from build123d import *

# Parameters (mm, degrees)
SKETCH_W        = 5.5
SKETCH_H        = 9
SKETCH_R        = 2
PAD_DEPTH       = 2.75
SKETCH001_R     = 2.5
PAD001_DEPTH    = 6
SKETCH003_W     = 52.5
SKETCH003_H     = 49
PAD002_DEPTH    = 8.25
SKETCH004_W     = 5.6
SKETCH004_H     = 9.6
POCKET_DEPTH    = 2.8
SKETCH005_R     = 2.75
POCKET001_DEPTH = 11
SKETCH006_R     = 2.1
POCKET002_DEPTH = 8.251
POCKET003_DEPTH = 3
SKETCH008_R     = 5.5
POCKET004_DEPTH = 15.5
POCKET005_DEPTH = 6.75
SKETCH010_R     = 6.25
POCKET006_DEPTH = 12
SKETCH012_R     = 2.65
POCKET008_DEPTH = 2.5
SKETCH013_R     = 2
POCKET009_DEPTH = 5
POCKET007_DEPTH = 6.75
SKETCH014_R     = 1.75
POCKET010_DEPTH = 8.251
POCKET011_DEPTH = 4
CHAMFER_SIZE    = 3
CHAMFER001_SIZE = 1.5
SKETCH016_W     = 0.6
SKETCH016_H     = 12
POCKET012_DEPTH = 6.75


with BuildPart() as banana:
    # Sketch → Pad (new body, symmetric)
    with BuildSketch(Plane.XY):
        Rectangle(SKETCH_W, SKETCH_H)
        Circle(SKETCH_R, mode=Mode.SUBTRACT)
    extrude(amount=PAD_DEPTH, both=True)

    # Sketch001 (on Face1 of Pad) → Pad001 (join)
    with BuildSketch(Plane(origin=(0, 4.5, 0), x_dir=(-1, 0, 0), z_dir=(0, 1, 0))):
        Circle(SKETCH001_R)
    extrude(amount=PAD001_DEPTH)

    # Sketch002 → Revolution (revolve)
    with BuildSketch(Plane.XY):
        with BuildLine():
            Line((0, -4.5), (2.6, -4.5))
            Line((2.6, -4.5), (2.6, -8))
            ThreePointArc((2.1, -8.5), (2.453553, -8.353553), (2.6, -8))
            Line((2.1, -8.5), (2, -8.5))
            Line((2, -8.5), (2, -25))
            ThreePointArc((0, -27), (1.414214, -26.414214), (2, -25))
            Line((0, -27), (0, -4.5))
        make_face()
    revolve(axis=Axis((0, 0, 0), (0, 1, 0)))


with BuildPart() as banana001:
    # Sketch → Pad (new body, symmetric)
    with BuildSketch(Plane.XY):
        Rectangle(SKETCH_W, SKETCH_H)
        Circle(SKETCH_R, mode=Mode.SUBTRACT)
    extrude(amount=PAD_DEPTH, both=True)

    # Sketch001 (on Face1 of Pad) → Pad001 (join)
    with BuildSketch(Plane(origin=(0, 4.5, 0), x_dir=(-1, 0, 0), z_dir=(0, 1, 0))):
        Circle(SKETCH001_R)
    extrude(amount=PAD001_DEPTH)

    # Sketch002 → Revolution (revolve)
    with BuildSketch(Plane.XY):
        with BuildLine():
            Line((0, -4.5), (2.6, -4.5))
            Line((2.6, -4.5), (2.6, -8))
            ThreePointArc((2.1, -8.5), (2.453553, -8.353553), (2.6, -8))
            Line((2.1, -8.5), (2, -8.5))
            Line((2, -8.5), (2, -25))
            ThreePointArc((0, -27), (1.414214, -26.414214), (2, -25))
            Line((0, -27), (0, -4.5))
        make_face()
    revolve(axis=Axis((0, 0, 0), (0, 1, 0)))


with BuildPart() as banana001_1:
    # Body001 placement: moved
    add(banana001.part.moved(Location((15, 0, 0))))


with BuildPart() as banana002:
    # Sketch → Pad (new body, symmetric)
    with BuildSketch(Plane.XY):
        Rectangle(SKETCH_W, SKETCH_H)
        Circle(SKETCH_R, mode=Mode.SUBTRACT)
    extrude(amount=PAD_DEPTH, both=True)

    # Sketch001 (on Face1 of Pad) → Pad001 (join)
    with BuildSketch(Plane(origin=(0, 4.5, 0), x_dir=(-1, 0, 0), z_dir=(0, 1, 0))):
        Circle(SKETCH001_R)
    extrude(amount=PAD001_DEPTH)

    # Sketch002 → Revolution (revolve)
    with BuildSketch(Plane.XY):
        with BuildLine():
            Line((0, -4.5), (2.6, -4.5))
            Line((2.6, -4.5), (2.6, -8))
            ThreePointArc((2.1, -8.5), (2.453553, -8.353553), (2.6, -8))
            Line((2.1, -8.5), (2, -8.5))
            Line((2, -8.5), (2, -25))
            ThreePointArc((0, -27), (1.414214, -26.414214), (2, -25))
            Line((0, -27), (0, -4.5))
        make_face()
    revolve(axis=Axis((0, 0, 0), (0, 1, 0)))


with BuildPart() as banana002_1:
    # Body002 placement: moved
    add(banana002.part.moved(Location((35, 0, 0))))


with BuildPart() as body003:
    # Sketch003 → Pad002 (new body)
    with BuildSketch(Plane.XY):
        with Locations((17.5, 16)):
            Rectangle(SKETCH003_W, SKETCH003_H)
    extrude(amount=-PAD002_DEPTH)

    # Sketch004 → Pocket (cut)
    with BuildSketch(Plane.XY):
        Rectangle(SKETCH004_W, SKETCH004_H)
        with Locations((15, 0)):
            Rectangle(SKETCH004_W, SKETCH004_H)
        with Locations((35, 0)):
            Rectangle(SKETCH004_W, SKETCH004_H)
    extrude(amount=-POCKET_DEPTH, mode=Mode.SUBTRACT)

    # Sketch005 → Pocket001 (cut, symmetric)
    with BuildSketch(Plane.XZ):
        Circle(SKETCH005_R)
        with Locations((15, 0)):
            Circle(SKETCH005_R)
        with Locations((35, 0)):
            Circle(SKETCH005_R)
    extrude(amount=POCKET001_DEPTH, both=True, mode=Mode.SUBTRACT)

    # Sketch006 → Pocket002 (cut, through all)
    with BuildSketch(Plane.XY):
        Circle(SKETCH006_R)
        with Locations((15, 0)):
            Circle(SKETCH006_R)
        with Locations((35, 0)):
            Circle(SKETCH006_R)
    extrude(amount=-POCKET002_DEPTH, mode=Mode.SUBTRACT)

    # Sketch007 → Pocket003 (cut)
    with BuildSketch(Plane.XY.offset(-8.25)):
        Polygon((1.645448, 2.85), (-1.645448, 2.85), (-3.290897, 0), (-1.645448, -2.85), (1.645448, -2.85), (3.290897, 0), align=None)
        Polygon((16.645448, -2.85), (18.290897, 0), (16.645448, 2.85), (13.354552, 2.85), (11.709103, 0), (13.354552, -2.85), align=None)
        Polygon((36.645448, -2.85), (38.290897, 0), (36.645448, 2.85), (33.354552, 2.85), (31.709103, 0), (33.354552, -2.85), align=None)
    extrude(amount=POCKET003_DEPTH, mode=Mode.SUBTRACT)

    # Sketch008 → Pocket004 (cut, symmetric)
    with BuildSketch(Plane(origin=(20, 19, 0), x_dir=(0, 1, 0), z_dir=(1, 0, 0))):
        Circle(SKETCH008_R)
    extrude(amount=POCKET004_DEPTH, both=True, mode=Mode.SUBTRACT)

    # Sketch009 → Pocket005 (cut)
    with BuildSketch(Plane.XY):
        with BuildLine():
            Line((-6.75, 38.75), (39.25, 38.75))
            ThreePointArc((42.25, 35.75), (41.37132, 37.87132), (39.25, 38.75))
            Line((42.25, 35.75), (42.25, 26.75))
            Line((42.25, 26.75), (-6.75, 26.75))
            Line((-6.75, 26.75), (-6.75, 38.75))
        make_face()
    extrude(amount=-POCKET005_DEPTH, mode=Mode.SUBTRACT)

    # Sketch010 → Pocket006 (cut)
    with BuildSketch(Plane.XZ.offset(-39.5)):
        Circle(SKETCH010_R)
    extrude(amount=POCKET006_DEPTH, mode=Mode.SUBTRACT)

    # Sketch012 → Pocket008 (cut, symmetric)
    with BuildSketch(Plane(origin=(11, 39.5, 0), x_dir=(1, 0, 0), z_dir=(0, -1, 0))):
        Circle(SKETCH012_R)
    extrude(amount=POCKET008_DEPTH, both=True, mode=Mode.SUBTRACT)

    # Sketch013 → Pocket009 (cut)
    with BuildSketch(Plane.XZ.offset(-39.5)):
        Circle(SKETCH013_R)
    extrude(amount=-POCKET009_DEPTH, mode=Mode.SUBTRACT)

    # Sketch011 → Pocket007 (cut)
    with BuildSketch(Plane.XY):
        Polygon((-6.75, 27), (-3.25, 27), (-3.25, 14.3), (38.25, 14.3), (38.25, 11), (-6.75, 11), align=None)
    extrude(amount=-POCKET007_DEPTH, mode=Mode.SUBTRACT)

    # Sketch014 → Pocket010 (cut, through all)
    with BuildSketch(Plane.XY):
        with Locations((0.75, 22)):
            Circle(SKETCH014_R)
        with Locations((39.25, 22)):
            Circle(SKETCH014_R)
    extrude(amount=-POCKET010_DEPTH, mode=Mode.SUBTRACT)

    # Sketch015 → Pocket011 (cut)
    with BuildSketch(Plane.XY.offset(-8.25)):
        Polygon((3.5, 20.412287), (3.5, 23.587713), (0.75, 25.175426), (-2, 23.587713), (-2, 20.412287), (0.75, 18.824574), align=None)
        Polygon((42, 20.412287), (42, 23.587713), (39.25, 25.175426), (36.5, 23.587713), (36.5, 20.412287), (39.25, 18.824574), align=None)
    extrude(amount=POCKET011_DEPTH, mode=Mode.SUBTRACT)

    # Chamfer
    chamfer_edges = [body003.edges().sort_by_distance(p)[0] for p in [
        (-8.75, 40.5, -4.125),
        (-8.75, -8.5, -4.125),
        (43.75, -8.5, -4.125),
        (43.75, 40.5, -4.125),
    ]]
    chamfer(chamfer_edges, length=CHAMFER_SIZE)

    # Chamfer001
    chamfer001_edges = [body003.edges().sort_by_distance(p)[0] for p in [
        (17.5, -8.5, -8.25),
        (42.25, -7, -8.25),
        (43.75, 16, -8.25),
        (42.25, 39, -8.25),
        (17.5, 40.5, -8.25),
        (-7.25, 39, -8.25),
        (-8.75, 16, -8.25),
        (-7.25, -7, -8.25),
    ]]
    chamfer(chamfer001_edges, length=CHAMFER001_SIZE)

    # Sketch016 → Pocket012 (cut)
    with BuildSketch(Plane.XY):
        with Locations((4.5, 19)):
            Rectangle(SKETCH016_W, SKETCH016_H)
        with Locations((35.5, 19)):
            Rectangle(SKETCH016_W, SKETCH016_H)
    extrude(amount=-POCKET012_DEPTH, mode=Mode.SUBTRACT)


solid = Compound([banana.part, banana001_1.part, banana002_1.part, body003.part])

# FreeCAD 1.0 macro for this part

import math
import FreeCAD as App
import Part
import Sketcher
Q = App.Units.Quantity


def edges_at(feature, points):
    """Names of the edges that pass closest to the given points."""
    edges = feature.Shape.Edges
    near = lambda p: min(range(len(edges)), key=lambda i: edges[i].distToShape(Part.Vertex(*p))[0])
    return sorted({f"Edge{near(p) + 1}" for p in points})

doc = App.newDocument("Part")
body = doc.addObject("PartDesign::Body", "Body")

# Sketch on XY plane
sketch1 = doc.addObject("Sketcher::SketchObject", "Sketch")
body.addObject(sketch1)
sketch1.AttachmentSupport = (doc.XY_Plane, [""])
sketch1.MapMode = "FlatFace"
sketch1.addGeometry(Part.LineSegment(App.Vector(-2.75, 4.5, 0), App.Vector(-2.75, -4.5, 0)), False)
sketch1.addGeometry(Part.LineSegment(App.Vector(-2.75, -4.5, 0), App.Vector(2.75, -4.5, 0)), False)
sketch1.addGeometry(Part.LineSegment(App.Vector(2.75, -4.5, 0), App.Vector(2.75, 4.5, 0)), False)
sketch1.addGeometry(Part.LineSegment(App.Vector(2.75, 4.5, 0), App.Vector(-2.75, 4.5, 0)), False)
sketch1.addGeometry(Part.Circle(App.Vector(0, 0, 0), App.Vector(0, 0, 1), 2), False)
sketch1.addConstraint(Sketcher.Constraint("Coincident", 0, 2, 1, 1))
sketch1.addConstraint(Sketcher.Constraint("Coincident", 1, 2, 2, 1))
sketch1.addConstraint(Sketcher.Constraint("Coincident", 2, 2, 3, 1))
sketch1.addConstraint(Sketcher.Constraint("Coincident", 3, 2, 0, 1))
sketch1.addConstraint(Sketcher.Constraint("Vertical", 0))
sketch1.addConstraint(Sketcher.Constraint("Horizontal", 1))
sketch1.addConstraint(Sketcher.Constraint("Vertical", 2))
sketch1.addConstraint(Sketcher.Constraint("Horizontal", 3))
sketch1.addConstraint(Sketcher.Constraint("Coincident", 4, 3, -1, 1))
sketch1.addConstraint(Sketcher.Constraint("Symmetric", 0, 2, 2, 2, -1, 1))
sketch1.addConstraint(Sketcher.Constraint("Diameter", 4, 4.0))
sketch1.addConstraint(Sketcher.Constraint("DistanceY", 0, 2, 0, 1, 9.0))
sketch1.addConstraint(Sketcher.Constraint("DistanceX", 1, 1, 1, 2, 5.5))
pad1 = doc.addObject("PartDesign::Pad", "Pad")
body.addObject(pad1)
pad1.Profile = sketch1
pad1.Length = 5.5
pad1.Midplane = True

# Sketch on XZ plane
sketch2 = doc.addObject("Sketcher::SketchObject", "Sketch001")
body.addObject(sketch2)
sketch2.AttachmentSupport = (doc.XZ_Plane, [""])
sketch2.MapMode = "FlatFace"
sketch2.AttachmentOffset = App.Placement(App.Vector(0, 0, -4.5), App.Rotation())
sketch2.addGeometry(Part.Circle(App.Vector(0, 0, 0), App.Vector(0, 0, 1), 2.5), False)
sketch2.addConstraint(Sketcher.Constraint("Coincident", 0, 3, -1, 1))
sketch2.addConstraint(Sketcher.Constraint("Diameter", 0, 5.0))
pad2 = doc.addObject("PartDesign::Pad", "Pad001")
body.addObject(pad2)
pad2.Profile = sketch2
pad2.Length = 6
pad2.Reversed = True

# Sketch on XY plane
sketch3 = doc.addObject("Sketcher::SketchObject", "Sketch002")
body.addObject(sketch3)
sketch3.AttachmentSupport = (doc.XY_Plane, [""])
sketch3.MapMode = "FlatFace"
sketch3.addGeometry(Part.LineSegment(App.Vector(2.6, -4.5, 0), App.Vector(0, -4.5, 0)), False)
sketch3.addGeometry(Part.LineSegment(App.Vector(0, -4.5, 0), App.Vector(0, -27, 0)), False)
sketch3.addGeometry(Part.ArcOfCircle(Part.Circle(App.Vector(0.000001, -25.000001, 0), App.Vector(0, 0, 1), 1.999999), math.radians(-90.000043), math.radians(0.000043)), False)
sketch3.addGeometry(Part.LineSegment(App.Vector(2, -25, 0), App.Vector(2, -8.5, 0)), False)
sketch3.addGeometry(Part.LineSegment(App.Vector(2, -8.5, 0), App.Vector(2.1, -8.5, 0)), False)
sketch3.addGeometry(Part.ArcOfCircle(Part.Circle(App.Vector(2.099999, -7.999999, 0), App.Vector(0, 0, 1), 0.500001), math.radians(-89.999847), math.radians(-0.000153)), False)
sketch3.addGeometry(Part.LineSegment(App.Vector(2.6, -8, 0), App.Vector(2.6, -4.5, 0)), False)
sketch3.addConstraint(Sketcher.Constraint("Coincident", 0, 2, 1, 1))
sketch3.addConstraint(Sketcher.Constraint("Coincident", 1, 2, 2, 1))
sketch3.addConstraint(Sketcher.Constraint("Tangent", 2, 2, 3, 1))
sketch3.addConstraint(Sketcher.Constraint("Coincident", 3, 2, 4, 1))
sketch3.addConstraint(Sketcher.Constraint("Coincident", 4, 2, 5, 1))
sketch3.addConstraint(Sketcher.Constraint("Coincident", 5, 2, 6, 1))
sketch3.addConstraint(Sketcher.Constraint("Coincident", 6, 2, 0, 1))
sketch3.addConstraint(Sketcher.Constraint("Horizontal", 0))
sketch3.addConstraint(Sketcher.Constraint("Vertical", 1))
sketch3.addConstraint(Sketcher.Constraint("Vertical", 3))
sketch3.addConstraint(Sketcher.Constraint("Horizontal", 4))
sketch3.addConstraint(Sketcher.Constraint("Vertical", 6))
sketch3.addConstraint(Sketcher.Constraint("PointOnObject", 2, 3, -2))
sketch3.addConstraint(Sketcher.Constraint("PointOnObject", 0, 2, -2))
sketch3.addConstraint(Sketcher.Constraint("Vertical", 5, 3, 4, 2))
sketch3.addConstraint(Sketcher.Constraint("Radius", 2, 1.999999))
sketch3.addConstraint(Sketcher.Constraint("Radius", 5, 0.500001))
sketch3.addConstraint(Sketcher.Constraint("DistanceX", 0, 2, 0, 1, 2.6))
sketch3.addConstraint(Sketcher.Constraint("DistanceY", 1, 2, 1, 1, 22.5))
sketch3.addConstraint(Sketcher.Constraint("DistanceY", 3, 1, 3, 2, 16.5))
sketch3.addConstraint(Sketcher.Constraint("DistanceY", 6, 1, 6, 2, 3.5))
sketch3.addConstraint(Sketcher.Constraint("DistanceY", 2, 3, -1, 1, 25.000001))
revolution = doc.addObject("PartDesign::Revolution", "Revolution")
body.addObject(revolution)
revolution.Profile = sketch3
revolution.ReferenceAxis = (sketch3, ["V_Axis"])
revolution.Angle = 360
body2 = doc.addObject("PartDesign::Body", "Body001")

# Sketch on XY plane
sketch4 = doc.addObject("Sketcher::SketchObject", "Sketch003")
body2.addObject(sketch4)
sketch4.AttachmentSupport = (doc.getObject("XY_Plane001"), [""])
sketch4.MapMode = "FlatFace"
sketch4.addGeometry(Part.LineSegment(App.Vector(-2.75, 4.5, 0), App.Vector(-2.75, -4.5, 0)), False)
sketch4.addGeometry(Part.LineSegment(App.Vector(-2.75, -4.5, 0), App.Vector(2.75, -4.5, 0)), False)
sketch4.addGeometry(Part.LineSegment(App.Vector(2.75, -4.5, 0), App.Vector(2.75, 4.5, 0)), False)
sketch4.addGeometry(Part.LineSegment(App.Vector(2.75, 4.5, 0), App.Vector(-2.75, 4.5, 0)), False)
sketch4.addGeometry(Part.Circle(App.Vector(0, 0, 0), App.Vector(0, 0, 1), 2), False)
sketch4.addConstraint(Sketcher.Constraint("Coincident", 0, 2, 1, 1))
sketch4.addConstraint(Sketcher.Constraint("Coincident", 1, 2, 2, 1))
sketch4.addConstraint(Sketcher.Constraint("Coincident", 2, 2, 3, 1))
sketch4.addConstraint(Sketcher.Constraint("Coincident", 3, 2, 0, 1))
sketch4.addConstraint(Sketcher.Constraint("Vertical", 0))
sketch4.addConstraint(Sketcher.Constraint("Horizontal", 1))
sketch4.addConstraint(Sketcher.Constraint("Vertical", 2))
sketch4.addConstraint(Sketcher.Constraint("Horizontal", 3))
sketch4.addConstraint(Sketcher.Constraint("Coincident", 4, 3, -1, 1))
sketch4.addConstraint(Sketcher.Constraint("Symmetric", 0, 2, 2, 2, -1, 1))
sketch4.addConstraint(Sketcher.Constraint("Diameter", 4, 4.0))
sketch4.addConstraint(Sketcher.Constraint("DistanceY", 0, 2, 0, 1, 9.0))
sketch4.addConstraint(Sketcher.Constraint("DistanceX", 1, 1, 1, 2, 5.5))
pad3 = doc.addObject("PartDesign::Pad", "Pad002")
body2.addObject(pad3)
pad3.Profile = sketch4
pad3.Length = 5.5
pad3.Midplane = True

# Sketch on XZ plane
sketch5 = doc.addObject("Sketcher::SketchObject", "Sketch004")
body2.addObject(sketch5)
sketch5.AttachmentSupport = (doc.getObject("XZ_Plane001"), [""])
sketch5.MapMode = "FlatFace"
sketch5.AttachmentOffset = App.Placement(App.Vector(0, 0, -4.5), App.Rotation())
sketch5.addGeometry(Part.Circle(App.Vector(0, 0, 0), App.Vector(0, 0, 1), 2.5), False)
sketch5.addConstraint(Sketcher.Constraint("Coincident", 0, 3, -1, 1))
sketch5.addConstraint(Sketcher.Constraint("Diameter", 0, 5.0))
pad4 = doc.addObject("PartDesign::Pad", "Pad003")
body2.addObject(pad4)
pad4.Profile = sketch5
pad4.Length = 6
pad4.Reversed = True

# Sketch on XY plane
sketch6 = doc.addObject("Sketcher::SketchObject", "Sketch005")
body2.addObject(sketch6)
sketch6.AttachmentSupport = (doc.getObject("XY_Plane001"), [""])
sketch6.MapMode = "FlatFace"
sketch6.addGeometry(Part.LineSegment(App.Vector(2.6, -4.5, 0), App.Vector(0, -4.5, 0)), False)
sketch6.addGeometry(Part.LineSegment(App.Vector(0, -4.5, 0), App.Vector(0, -27, 0)), False)
sketch6.addGeometry(Part.ArcOfCircle(Part.Circle(App.Vector(0.000001, -25.000001, 0), App.Vector(0, 0, 1), 1.999999), math.radians(-90.000043), math.radians(0.000043)), False)
sketch6.addGeometry(Part.LineSegment(App.Vector(2, -25, 0), App.Vector(2, -8.5, 0)), False)
sketch6.addGeometry(Part.LineSegment(App.Vector(2, -8.5, 0), App.Vector(2.1, -8.5, 0)), False)
sketch6.addGeometry(Part.ArcOfCircle(Part.Circle(App.Vector(2.099999, -7.999999, 0), App.Vector(0, 0, 1), 0.500001), math.radians(-89.999847), math.radians(-0.000153)), False)
sketch6.addGeometry(Part.LineSegment(App.Vector(2.6, -8, 0), App.Vector(2.6, -4.5, 0)), False)
sketch6.addConstraint(Sketcher.Constraint("Coincident", 0, 2, 1, 1))
sketch6.addConstraint(Sketcher.Constraint("Coincident", 1, 2, 2, 1))
sketch6.addConstraint(Sketcher.Constraint("Tangent", 2, 2, 3, 1))
sketch6.addConstraint(Sketcher.Constraint("Coincident", 3, 2, 4, 1))
sketch6.addConstraint(Sketcher.Constraint("Coincident", 4, 2, 5, 1))
sketch6.addConstraint(Sketcher.Constraint("Coincident", 5, 2, 6, 1))
sketch6.addConstraint(Sketcher.Constraint("Coincident", 6, 2, 0, 1))
sketch6.addConstraint(Sketcher.Constraint("Horizontal", 0))
sketch6.addConstraint(Sketcher.Constraint("Vertical", 1))
sketch6.addConstraint(Sketcher.Constraint("Vertical", 3))
sketch6.addConstraint(Sketcher.Constraint("Horizontal", 4))
sketch6.addConstraint(Sketcher.Constraint("Vertical", 6))
sketch6.addConstraint(Sketcher.Constraint("PointOnObject", 2, 3, -2))
sketch6.addConstraint(Sketcher.Constraint("PointOnObject", 0, 2, -2))
sketch6.addConstraint(Sketcher.Constraint("Vertical", 5, 3, 4, 2))
sketch6.addConstraint(Sketcher.Constraint("Radius", 2, 1.999999))
sketch6.addConstraint(Sketcher.Constraint("Radius", 5, 0.500001))
sketch6.addConstraint(Sketcher.Constraint("DistanceX", 0, 2, 0, 1, 2.6))
sketch6.addConstraint(Sketcher.Constraint("DistanceY", 1, 2, 1, 1, 22.5))
sketch6.addConstraint(Sketcher.Constraint("DistanceY", 3, 1, 3, 2, 16.5))
sketch6.addConstraint(Sketcher.Constraint("DistanceY", 6, 1, 6, 2, 3.5))
sketch6.addConstraint(Sketcher.Constraint("DistanceY", 2, 3, -1, 1, 25.000001))
revolution2 = doc.addObject("PartDesign::Revolution", "Revolution001")
body2.addObject(revolution2)
revolution2.Profile = sketch6
revolution2.ReferenceAxis = (sketch6, ["V_Axis"])
revolution2.Angle = 360
body3 = doc.addObject("PartDesign::Body", "Body002")
doc.recompute()

body2.Placement = App.Placement(App.Vector(15, 0, 0), App.Rotation(App.Vector(0, 0, 1), 0))
boolean = doc.addObject("PartDesign::Boolean", "Boolean")
body3.addObject(boolean)
boolean.Type = "Fuse"
boolean.addObjects([body2])
body4 = doc.addObject("PartDesign::Body", "Body003")

# Sketch on XY plane
sketch7 = doc.addObject("Sketcher::SketchObject", "Sketch006")
body4.addObject(sketch7)
sketch7.AttachmentSupport = (doc.getObject("XY_Plane003"), [""])
sketch7.MapMode = "FlatFace"
sketch7.addGeometry(Part.LineSegment(App.Vector(-2.75, 4.5, 0), App.Vector(-2.75, -4.5, 0)), False)
sketch7.addGeometry(Part.LineSegment(App.Vector(-2.75, -4.5, 0), App.Vector(2.75, -4.5, 0)), False)
sketch7.addGeometry(Part.LineSegment(App.Vector(2.75, -4.5, 0), App.Vector(2.75, 4.5, 0)), False)
sketch7.addGeometry(Part.LineSegment(App.Vector(2.75, 4.5, 0), App.Vector(-2.75, 4.5, 0)), False)
sketch7.addGeometry(Part.Circle(App.Vector(0, 0, 0), App.Vector(0, 0, 1), 2), False)
sketch7.addConstraint(Sketcher.Constraint("Coincident", 0, 2, 1, 1))
sketch7.addConstraint(Sketcher.Constraint("Coincident", 1, 2, 2, 1))
sketch7.addConstraint(Sketcher.Constraint("Coincident", 2, 2, 3, 1))
sketch7.addConstraint(Sketcher.Constraint("Coincident", 3, 2, 0, 1))
sketch7.addConstraint(Sketcher.Constraint("Vertical", 0))
sketch7.addConstraint(Sketcher.Constraint("Horizontal", 1))
sketch7.addConstraint(Sketcher.Constraint("Vertical", 2))
sketch7.addConstraint(Sketcher.Constraint("Horizontal", 3))
sketch7.addConstraint(Sketcher.Constraint("Coincident", 4, 3, -1, 1))
sketch7.addConstraint(Sketcher.Constraint("Symmetric", 0, 2, 2, 2, -1, 1))
sketch7.addConstraint(Sketcher.Constraint("Diameter", 4, 4.0))
sketch7.addConstraint(Sketcher.Constraint("DistanceY", 0, 2, 0, 1, 9.0))
sketch7.addConstraint(Sketcher.Constraint("DistanceX", 1, 1, 1, 2, 5.5))
pad5 = doc.addObject("PartDesign::Pad", "Pad004")
body4.addObject(pad5)
pad5.Profile = sketch7
pad5.Length = 5.5
pad5.Midplane = True

# Sketch on XZ plane
sketch8 = doc.addObject("Sketcher::SketchObject", "Sketch007")
body4.addObject(sketch8)
sketch8.AttachmentSupport = (doc.getObject("XZ_Plane003"), [""])
sketch8.MapMode = "FlatFace"
sketch8.AttachmentOffset = App.Placement(App.Vector(0, 0, -4.5), App.Rotation())
sketch8.addGeometry(Part.Circle(App.Vector(0, 0, 0), App.Vector(0, 0, 1), 2.5), False)
sketch8.addConstraint(Sketcher.Constraint("Coincident", 0, 3, -1, 1))
sketch8.addConstraint(Sketcher.Constraint("Diameter", 0, 5.0))
pad6 = doc.addObject("PartDesign::Pad", "Pad005")
body4.addObject(pad6)
pad6.Profile = sketch8
pad6.Length = 6
pad6.Reversed = True

# Sketch on XY plane
sketch9 = doc.addObject("Sketcher::SketchObject", "Sketch008")
body4.addObject(sketch9)
sketch9.AttachmentSupport = (doc.getObject("XY_Plane003"), [""])
sketch9.MapMode = "FlatFace"
sketch9.addGeometry(Part.LineSegment(App.Vector(2.6, -4.5, 0), App.Vector(0, -4.5, 0)), False)
sketch9.addGeometry(Part.LineSegment(App.Vector(0, -4.5, 0), App.Vector(0, -27, 0)), False)
sketch9.addGeometry(Part.ArcOfCircle(Part.Circle(App.Vector(0.000001, -25.000001, 0), App.Vector(0, 0, 1), 1.999999), math.radians(-90.000043), math.radians(0.000043)), False)
sketch9.addGeometry(Part.LineSegment(App.Vector(2, -25, 0), App.Vector(2, -8.5, 0)), False)
sketch9.addGeometry(Part.LineSegment(App.Vector(2, -8.5, 0), App.Vector(2.1, -8.5, 0)), False)
sketch9.addGeometry(Part.ArcOfCircle(Part.Circle(App.Vector(2.099999, -7.999999, 0), App.Vector(0, 0, 1), 0.500001), math.radians(-89.999847), math.radians(-0.000153)), False)
sketch9.addGeometry(Part.LineSegment(App.Vector(2.6, -8, 0), App.Vector(2.6, -4.5, 0)), False)
sketch9.addConstraint(Sketcher.Constraint("Coincident", 0, 2, 1, 1))
sketch9.addConstraint(Sketcher.Constraint("Coincident", 1, 2, 2, 1))
sketch9.addConstraint(Sketcher.Constraint("Tangent", 2, 2, 3, 1))
sketch9.addConstraint(Sketcher.Constraint("Coincident", 3, 2, 4, 1))
sketch9.addConstraint(Sketcher.Constraint("Coincident", 4, 2, 5, 1))
sketch9.addConstraint(Sketcher.Constraint("Coincident", 5, 2, 6, 1))
sketch9.addConstraint(Sketcher.Constraint("Coincident", 6, 2, 0, 1))
sketch9.addConstraint(Sketcher.Constraint("Horizontal", 0))
sketch9.addConstraint(Sketcher.Constraint("Vertical", 1))
sketch9.addConstraint(Sketcher.Constraint("Vertical", 3))
sketch9.addConstraint(Sketcher.Constraint("Horizontal", 4))
sketch9.addConstraint(Sketcher.Constraint("Vertical", 6))
sketch9.addConstraint(Sketcher.Constraint("PointOnObject", 2, 3, -2))
sketch9.addConstraint(Sketcher.Constraint("PointOnObject", 0, 2, -2))
sketch9.addConstraint(Sketcher.Constraint("Vertical", 5, 3, 4, 2))
sketch9.addConstraint(Sketcher.Constraint("Radius", 2, 1.999999))
sketch9.addConstraint(Sketcher.Constraint("Radius", 5, 0.500001))
sketch9.addConstraint(Sketcher.Constraint("DistanceX", 0, 2, 0, 1, 2.6))
sketch9.addConstraint(Sketcher.Constraint("DistanceY", 1, 2, 1, 1, 22.5))
sketch9.addConstraint(Sketcher.Constraint("DistanceY", 3, 1, 3, 2, 16.5))
sketch9.addConstraint(Sketcher.Constraint("DistanceY", 6, 1, 6, 2, 3.5))
sketch9.addConstraint(Sketcher.Constraint("DistanceY", 2, 3, -1, 1, 25.000001))
revolution3 = doc.addObject("PartDesign::Revolution", "Revolution002")
body4.addObject(revolution3)
revolution3.Profile = sketch9
revolution3.ReferenceAxis = (sketch9, ["V_Axis"])
revolution3.Angle = 360
body5 = doc.addObject("PartDesign::Body", "Body004")
doc.recompute()

body4.Placement = App.Placement(App.Vector(35, 0, 0), App.Rotation(App.Vector(0, 0, 1), 0))
boolean2 = doc.addObject("PartDesign::Boolean", "Boolean001")
body5.addObject(boolean2)
boolean2.Type = "Fuse"
boolean2.addObjects([body4])
body6 = doc.addObject("PartDesign::Body", "Body005")

# Sketch on XY plane
sketch10 = doc.addObject("Sketcher::SketchObject", "Sketch009")
body6.addObject(sketch10)
sketch10.AttachmentSupport = (doc.getObject("XY_Plane005"), [""])
sketch10.MapMode = "FlatFace"
sketch10.addGeometry(Part.LineSegment(App.Vector(-8.75, 40.5, 0), App.Vector(-8.75, -8.5, 0)), False)
sketch10.addGeometry(Part.LineSegment(App.Vector(-8.75, -8.5, 0), App.Vector(43.75, -8.5, 0)), False)
sketch10.addGeometry(Part.LineSegment(App.Vector(43.75, -8.5, 0), App.Vector(43.75, 40.5, 0)), False)
sketch10.addGeometry(Part.LineSegment(App.Vector(43.75, 40.5, 0), App.Vector(-8.75, 40.5, 0)), False)
sketch10.addConstraint(Sketcher.Constraint("Coincident", 0, 2, 1, 1))
sketch10.addConstraint(Sketcher.Constraint("Coincident", 1, 2, 2, 1))
sketch10.addConstraint(Sketcher.Constraint("Coincident", 2, 2, 3, 1))
sketch10.addConstraint(Sketcher.Constraint("Coincident", 3, 2, 0, 1))
sketch10.addConstraint(Sketcher.Constraint("Vertical", 0))
sketch10.addConstraint(Sketcher.Constraint("Horizontal", 1))
sketch10.addConstraint(Sketcher.Constraint("Vertical", 2))
sketch10.addConstraint(Sketcher.Constraint("Horizontal", 3))
sketch10.addConstraint(Sketcher.Constraint("DistanceY", 0, 2, 0, 1, 49.0))
sketch10.addConstraint(Sketcher.Constraint("DistanceX", 1, 1, 1, 2, 52.5))
sketch10.addConstraint(Sketcher.Constraint("DistanceY", 0, 2, -1, 1, 8.5))
sketch10.addConstraint(Sketcher.Constraint("DistanceX", 0, 2, -1, 1, 8.75))
pad7 = doc.addObject("PartDesign::Pad", "Pad006")
body6.addObject(pad7)
pad7.Profile = sketch10
pad7.Length = 8.25
pad7.Reversed = True

# Sketch on XY plane
sketch11 = doc.addObject("Sketcher::SketchObject", "Sketch010")
body6.addObject(sketch11)
sketch11.AttachmentSupport = (doc.getObject("XY_Plane005"), [""])
sketch11.MapMode = "FlatFace"
sketch11.addGeometry(Part.LineSegment(App.Vector(-2.8, 4.8, 0), App.Vector(-2.8, -4.8, 0)), False)
sketch11.addGeometry(Part.LineSegment(App.Vector(-2.8, -4.8, 0), App.Vector(2.8, -4.8, 0)), False)
sketch11.addGeometry(Part.LineSegment(App.Vector(2.8, -4.8, 0), App.Vector(2.8, 4.8, 0)), False)
sketch11.addGeometry(Part.LineSegment(App.Vector(2.8, 4.8, 0), App.Vector(-2.8, 4.8, 0)), False)
sketch11.addGeometry(Part.LineSegment(App.Vector(12.2, 4.8, 0), App.Vector(12.2, -4.8, 0)), False)
sketch11.addGeometry(Part.LineSegment(App.Vector(12.2, -4.8, 0), App.Vector(17.8, -4.8, 0)), False)
sketch11.addGeometry(Part.LineSegment(App.Vector(17.8, -4.8, 0), App.Vector(17.8, 4.8, 0)), False)
sketch11.addGeometry(Part.LineSegment(App.Vector(17.8, 4.8, 0), App.Vector(12.2, 4.8, 0)), False)
sketch11.addGeometry(Part.LineSegment(App.Vector(32.2, 4.8, 0), App.Vector(32.2, -4.8, 0)), False)
sketch11.addGeometry(Part.LineSegment(App.Vector(32.2, -4.8, 0), App.Vector(37.8, -4.8, 0)), False)
sketch11.addGeometry(Part.LineSegment(App.Vector(37.8, -4.8, 0), App.Vector(37.8, 4.8, 0)), False)
sketch11.addGeometry(Part.LineSegment(App.Vector(37.8, 4.8, 0), App.Vector(32.2, 4.8, 0)), False)
sketch11.addConstraint(Sketcher.Constraint("Coincident", 0, 2, 1, 1))
sketch11.addConstraint(Sketcher.Constraint("Coincident", 1, 2, 2, 1))
sketch11.addConstraint(Sketcher.Constraint("Coincident", 2, 2, 3, 1))
sketch11.addConstraint(Sketcher.Constraint("Coincident", 3, 2, 0, 1))
sketch11.addConstraint(Sketcher.Constraint("Coincident", 4, 2, 5, 1))
sketch11.addConstraint(Sketcher.Constraint("Coincident", 5, 2, 6, 1))
sketch11.addConstraint(Sketcher.Constraint("Coincident", 6, 2, 7, 1))
sketch11.addConstraint(Sketcher.Constraint("Coincident", 7, 2, 4, 1))
sketch11.addConstraint(Sketcher.Constraint("Coincident", 8, 2, 9, 1))
sketch11.addConstraint(Sketcher.Constraint("Coincident", 9, 2, 10, 1))
sketch11.addConstraint(Sketcher.Constraint("Coincident", 10, 2, 11, 1))
sketch11.addConstraint(Sketcher.Constraint("Coincident", 11, 2, 8, 1))
sketch11.addConstraint(Sketcher.Constraint("Vertical", 0))
sketch11.addConstraint(Sketcher.Constraint("Horizontal", 1))
sketch11.addConstraint(Sketcher.Constraint("Vertical", 2))
sketch11.addConstraint(Sketcher.Constraint("Horizontal", 3))
sketch11.addConstraint(Sketcher.Constraint("Vertical", 4))
sketch11.addConstraint(Sketcher.Constraint("Horizontal", 5))
sketch11.addConstraint(Sketcher.Constraint("Vertical", 6))
sketch11.addConstraint(Sketcher.Constraint("Horizontal", 7))
sketch11.addConstraint(Sketcher.Constraint("Vertical", 8))
sketch11.addConstraint(Sketcher.Constraint("Horizontal", 9))
sketch11.addConstraint(Sketcher.Constraint("Vertical", 10))
sketch11.addConstraint(Sketcher.Constraint("Horizontal", 11))
sketch11.addConstraint(Sketcher.Constraint("Symmetric", 0, 2, 2, 2, -1, 1))
sketch11.addConstraint(Sketcher.Constraint("Horizontal", 1, 2, 4, 2))
sketch11.addConstraint(Sketcher.Constraint("Horizontal", 3, 2, 6, 2))
sketch11.addConstraint(Sketcher.Constraint("Horizontal", 5, 2, 8, 2))
sketch11.addConstraint(Sketcher.Constraint("Horizontal", 7, 2, 10, 2))
sketch11.addConstraint(Sketcher.Constraint("Equal", 3, 5))
sketch11.addConstraint(Sketcher.Constraint("Equal", 7, 9))
sketch11.addConstraint(Sketcher.Constraint("DistanceX", 1, 1, 1, 2, 5.6))
sketch11.addConstraint(Sketcher.Constraint("DistanceY", 0, 2, 0, 1, 9.6))
sketch11.addConstraint(Sketcher.Constraint("DistanceX", 0, 2, 4, 2, 15.0))
sketch11.addConstraint(Sketcher.Constraint("DistanceX", 4, 2, 8, 2, 20.0))
pocket1 = doc.addObject("PartDesign::Pocket", "Pocket")
body6.addObject(pocket1)
pocket1.Profile = sketch11
pocket1.Length = 2.8

# Sketch on XZ plane
sketch12 = doc.addObject("Sketcher::SketchObject", "Sketch011")
body6.addObject(sketch12)
sketch12.AttachmentSupport = (doc.getObject("XZ_Plane005"), [""])
sketch12.MapMode = "FlatFace"
sketch12.addGeometry(Part.Circle(App.Vector(0, 0, 0), App.Vector(0, 0, 1), 2.75), False)
sketch12.addGeometry(Part.Circle(App.Vector(15, 0, 0), App.Vector(0, 0, 1), 2.75), False)
sketch12.addGeometry(Part.Circle(App.Vector(35, 0, 0), App.Vector(0, 0, 1), 2.75), False)
sketch12.addConstraint(Sketcher.Constraint("Coincident", 0, 3, -1, 1))
sketch12.addConstraint(Sketcher.Constraint("Equal", 0, 1))
sketch12.addConstraint(Sketcher.Constraint("Equal", 1, 2))
sketch12.addConstraint(Sketcher.Constraint("PointOnObject", 1, 3, -1))
sketch12.addConstraint(Sketcher.Constraint("PointOnObject", 2, 3, -1))
sketch12.addConstraint(Sketcher.Constraint("Diameter", 0, 5.5))
sketch12.addConstraint(Sketcher.Constraint("DistanceX", -1, 1, 1, 3, 15.0))
sketch12.addConstraint(Sketcher.Constraint("DistanceX", -1, 1, 2, 3, 35.0))
pocket2 = doc.addObject("PartDesign::Pocket", "Pocket001")
body6.addObject(pocket2)
pocket2.Profile = sketch12
pocket2.Length = 22
pocket2.Midplane = True

# Sketch on XY plane
sketch13 = doc.addObject("Sketcher::SketchObject", "Sketch012")
body6.addObject(sketch13)
sketch13.AttachmentSupport = (doc.getObject("XY_Plane005"), [""])
sketch13.MapMode = "FlatFace"
sketch13.addGeometry(Part.Circle(App.Vector(0, 0, 0), App.Vector(0, 0, 1), 2.1), False)
sketch13.addGeometry(Part.Circle(App.Vector(15, 0, 0), App.Vector(0, 0, 1), 2.1), False)
sketch13.addGeometry(Part.Circle(App.Vector(35, 0, 0), App.Vector(0, 0, 1), 2.1), False)
sketch13.addConstraint(Sketcher.Constraint("Coincident", 0, 3, -1, 1))
sketch13.addConstraint(Sketcher.Constraint("Equal", 0, 1))
sketch13.addConstraint(Sketcher.Constraint("Equal", 1, 2))
sketch13.addConstraint(Sketcher.Constraint("PointOnObject", 1, 3, -1))
sketch13.addConstraint(Sketcher.Constraint("PointOnObject", 2, 3, -1))
sketch13.addConstraint(Sketcher.Constraint("Diameter", 0, 4.2))
sketch13.addConstraint(Sketcher.Constraint("DistanceX", -1, 1, 1, 3, 15.0))
sketch13.addConstraint(Sketcher.Constraint("DistanceX", -1, 1, 2, 3, 35.0))
pocket3 = doc.addObject("PartDesign::Pocket", "Pocket002")
body6.addObject(pocket3)
pocket3.Profile = sketch13
pocket3.Type = "ThroughAll"

# Sketch on XY plane
sketch14 = doc.addObject("Sketcher::SketchObject", "Sketch013")
body6.addObject(sketch14)
sketch14.AttachmentSupport = (doc.getObject("XY_Plane005"), [""])
sketch14.MapMode = "FlatFace"
sketch14.AttachmentOffset = App.Placement(App.Vector(0, 0, -8.25), App.Rotation())
sketch14.addGeometry(Part.LineSegment(App.Vector(1.645448, 2.85, 0), App.Vector(-1.645448, 2.85, 0)), False)
sketch14.addGeometry(Part.LineSegment(App.Vector(-1.645448, 2.85, 0), App.Vector(-3.290897, 0, 0)), False)
sketch14.addGeometry(Part.LineSegment(App.Vector(-3.290897, 0, 0), App.Vector(-1.645448, -2.85, 0)), False)
sketch14.addGeometry(Part.LineSegment(App.Vector(-1.645448, -2.85, 0), App.Vector(1.645448, -2.85, 0)), False)
sketch14.addGeometry(Part.LineSegment(App.Vector(1.645448, -2.85, 0), App.Vector(3.290897, 0, 0)), False)
sketch14.addGeometry(Part.LineSegment(App.Vector(3.290897, 0, 0), App.Vector(1.645448, 2.85, 0)), False)
sketch14.addGeometry(Part.LineSegment(App.Vector(16.645448, -2.85, 0), App.Vector(18.290897, 0, 0)), False)
sketch14.addGeometry(Part.LineSegment(App.Vector(18.290897, 0, 0), App.Vector(16.645448, 2.85, 0)), False)
sketch14.addGeometry(Part.LineSegment(App.Vector(16.645448, 2.85, 0), App.Vector(13.354552, 2.85, 0)), False)
sketch14.addGeometry(Part.LineSegment(App.Vector(13.354552, 2.85, 0), App.Vector(11.709103, 0, 0)), False)
sketch14.addGeometry(Part.LineSegment(App.Vector(11.709103, 0, 0), App.Vector(13.354552, -2.85, 0)), False)
sketch14.addGeometry(Part.LineSegment(App.Vector(13.354552, -2.85, 0), App.Vector(16.645448, -2.85, 0)), False)
sketch14.addGeometry(Part.LineSegment(App.Vector(36.645448, -2.85, 0), App.Vector(38.290897, 0, 0)), False)
sketch14.addGeometry(Part.LineSegment(App.Vector(38.290897, 0, 0), App.Vector(36.645448, 2.85, 0)), False)
sketch14.addGeometry(Part.LineSegment(App.Vector(36.645448, 2.85, 0), App.Vector(33.354552, 2.85, 0)), False)
sketch14.addGeometry(Part.LineSegment(App.Vector(33.354552, 2.85, 0), App.Vector(31.709103, 0, 0)), False)
sketch14.addGeometry(Part.LineSegment(App.Vector(31.709103, 0, 0), App.Vector(33.354552, -2.85, 0)), False)
sketch14.addGeometry(Part.LineSegment(App.Vector(33.354552, -2.85, 0), App.Vector(36.645448, -2.85, 0)), False)
sketch14.addConstraint(Sketcher.Constraint("Coincident", 0, 2, 1, 1))
sketch14.addConstraint(Sketcher.Constraint("Coincident", 1, 2, 2, 1))
sketch14.addConstraint(Sketcher.Constraint("Coincident", 2, 2, 3, 1))
sketch14.addConstraint(Sketcher.Constraint("Coincident", 3, 2, 4, 1))
sketch14.addConstraint(Sketcher.Constraint("Coincident", 4, 2, 5, 1))
sketch14.addConstraint(Sketcher.Constraint("Coincident", 5, 2, 0, 1))
sketch14.addConstraint(Sketcher.Constraint("Coincident", 6, 2, 7, 1))
sketch14.addConstraint(Sketcher.Constraint("Coincident", 7, 2, 8, 1))
sketch14.addConstraint(Sketcher.Constraint("Coincident", 8, 2, 9, 1))
sketch14.addConstraint(Sketcher.Constraint("Coincident", 9, 2, 10, 1))
sketch14.addConstraint(Sketcher.Constraint("Coincident", 10, 2, 11, 1))
sketch14.addConstraint(Sketcher.Constraint("Coincident", 11, 2, 6, 1))
sketch14.addConstraint(Sketcher.Constraint("Coincident", 12, 2, 13, 1))
sketch14.addConstraint(Sketcher.Constraint("Coincident", 13, 2, 14, 1))
sketch14.addConstraint(Sketcher.Constraint("Coincident", 14, 2, 15, 1))
sketch14.addConstraint(Sketcher.Constraint("Coincident", 15, 2, 16, 1))
sketch14.addConstraint(Sketcher.Constraint("Coincident", 16, 2, 17, 1))
sketch14.addConstraint(Sketcher.Constraint("Coincident", 17, 2, 12, 1))
sketch14.addConstraint(Sketcher.Constraint("Horizontal", 0))
sketch14.addConstraint(Sketcher.Constraint("Horizontal", 3))
sketch14.addConstraint(Sketcher.Constraint("Horizontal", 8))
sketch14.addConstraint(Sketcher.Constraint("Horizontal", 11))
sketch14.addConstraint(Sketcher.Constraint("Horizontal", 14))
sketch14.addConstraint(Sketcher.Constraint("Horizontal", 17))
sketch14.addConstraint(Sketcher.Constraint("Symmetric", 0, 2, 3, 2, -1, 1))
sketch14.addConstraint(Sketcher.Constraint("Symmetric", 1, 2, 4, 2, -1, 1))
sketch14.addConstraint(Sketcher.Constraint("Symmetric", 8, 2, 10, 2, -1))
sketch14.addConstraint(Sketcher.Constraint("Symmetric", 14, 2, 16, 2, -1))
sketch14.addConstraint(Sketcher.Constraint("PointOnObject", 1, 2, -1))
sketch14.addConstraint(Sketcher.Constraint("PointOnObject", 6, 2, -1))
sketch14.addConstraint(Sketcher.Constraint("PointOnObject", 9, 2, -1))
sketch14.addConstraint(Sketcher.Constraint("PointOnObject", 12, 2, -1))
sketch14.addConstraint(Sketcher.Constraint("PointOnObject", 15, 2, -1))
sketch14.addConstraint(Sketcher.Constraint("Parallel", 2, 5))
sketch14.addConstraint(Sketcher.Constraint("Parallel", 4, 6))
sketch14.addConstraint(Sketcher.Constraint("Parallel", 5, 7))
sketch14.addConstraint(Sketcher.Constraint("Parallel", 6, 9))
sketch14.addConstraint(Sketcher.Constraint("Parallel", 7, 10))
sketch14.addConstraint(Sketcher.Constraint("Parallel", 9, 12))
sketch14.addConstraint(Sketcher.Constraint("Parallel", 10, 13))
sketch14.addConstraint(Sketcher.Constraint("Parallel", 12, 15))
sketch14.addConstraint(Sketcher.Constraint("Horizontal", 5, 2, 7, 2))
sketch14.addConstraint(Sketcher.Constraint("Horizontal", 8, 2, 13, 2))
sketch14.addConstraint(Sketcher.Constraint("Equal", 3, 8))
sketch14.addConstraint(Sketcher.Constraint("Equal", 11, 14))
sketch14.addConstraint(Sketcher.Constraint("Angle", 1, Q("-120.000011 deg")))
sketch14.addConstraint(Sketcher.Constraint("DistanceX", 4, 2, 6, 2, 15.0))
sketch14.addConstraint(Sketcher.Constraint("DistanceX", 6, 2, 12, 2, 20.0))
sketch14.addConstraint(Sketcher.Constraint("DistanceY", 2, 2, 0, 2, 5.7))
sketch14.addConstraint(Sketcher.Constraint("DistanceX", 0, 2, 0, 1, 3.290896))
pocket4 = doc.addObject("PartDesign::Pocket", "Pocket003")
body6.addObject(pocket4)
pocket4.Profile = sketch14
pocket4.Length = 3
pocket4.Reversed = True

# Sketch on YZ plane
sketch15 = doc.addObject("Sketcher::SketchObject", "Sketch014")
body6.addObject(sketch15)
sketch15.AttachmentSupport = (doc.getObject("YZ_Plane005"), [""])
sketch15.MapMode = "FlatFace"
sketch15.AttachmentOffset = App.Placement(App.Vector(0, 0, 20), App.Rotation())
sketch15.addGeometry(Part.Circle(App.Vector(19, 0, 0), App.Vector(0, 0, 1), 5.5), False)
sketch15.addConstraint(Sketcher.Constraint("PointOnObject", 0, 3, -1))
sketch15.addConstraint(Sketcher.Constraint("Diameter", 0, 11.0))
sketch15.addConstraint(Sketcher.Constraint("DistanceX", -1, 1, 0, 3, 19.0))
pocket5 = doc.addObject("PartDesign::Pocket", "Pocket004")
body6.addObject(pocket5)
pocket5.Profile = sketch15
pocket5.Length = 31
pocket5.Midplane = True

# Sketch on XY plane
sketch16 = doc.addObject("Sketcher::SketchObject", "Sketch015")
body6.addObject(sketch16)
sketch16.AttachmentSupport = (doc.getObject("XY_Plane005"), [""])
sketch16.MapMode = "FlatFace"
sketch16.addGeometry(Part.LineSegment(App.Vector(39.25, 38.75, 0), App.Vector(-6.75, 38.75, 0)), False)
sketch16.addGeometry(Part.LineSegment(App.Vector(-6.75, 38.75, 0), App.Vector(-6.75, 26.75, 0)), False)
sketch16.addGeometry(Part.LineSegment(App.Vector(-6.75, 26.75, 0), App.Vector(42.25, 26.75, 0)), False)
sketch16.addGeometry(Part.LineSegment(App.Vector(42.25, 26.75, 0), App.Vector(42.25, 35.75, 0)), False)
sketch16.addGeometry(Part.ArcOfCircle(Part.Circle(App.Vector(39.249999, 35.749999, 0), App.Vector(0, 0, 1), 3.000001), math.radians(0.000022), math.radians(89.999978)), False)
sketch16.addConstraint(Sketcher.Constraint("Coincident", 0, 2, 1, 1))
sketch16.addConstraint(Sketcher.Constraint("Coincident", 1, 2, 2, 1))
sketch16.addConstraint(Sketcher.Constraint("Coincident", 2, 2, 3, 1))
sketch16.addConstraint(Sketcher.Constraint("Tangent", 3, 2, 4, 1))
sketch16.addConstraint(Sketcher.Constraint("Tangent", 4, 2, 0, 1))
sketch16.addConstraint(Sketcher.Constraint("Horizontal", 0))
sketch16.addConstraint(Sketcher.Constraint("Vertical", 1))
sketch16.addConstraint(Sketcher.Constraint("Horizontal", 2))
sketch16.addConstraint(Sketcher.Constraint("Vertical", 3))
sketch16.addConstraint(Sketcher.Constraint("Radius", 4, 3.000001))
sketch16.addConstraint(Sketcher.Constraint("DistanceX", 0, 2, 0, 1, 46.0))
sketch16.addConstraint(Sketcher.Constraint("DistanceY", 1, 2, 1, 1, 12.0))
sketch16.addConstraint(Sketcher.Constraint("DistanceX", -1, 1, 4, 3, 39.249999))
sketch16.addConstraint(Sketcher.Constraint("DistanceY", -1, 1, 4, 3, 35.749999))
pocket6 = doc.addObject("PartDesign::Pocket", "Pocket005")
body6.addObject(pocket6)
pocket6.Profile = sketch16
pocket6.Length = 6.75

# Sketch on XZ plane
sketch17 = doc.addObject("Sketcher::SketchObject", "Sketch016")
body6.addObject(sketch17)
sketch17.AttachmentSupport = (doc.getObject("XZ_Plane005"), [""])
sketch17.MapMode = "FlatFace"
sketch17.AttachmentOffset = App.Placement(App.Vector(0, 0, -39.5), App.Rotation())
sketch17.addGeometry(Part.Circle(App.Vector(0, 0, 0), App.Vector(0, 0, 1), 6.25), False)
sketch17.addConstraint(Sketcher.Constraint("Coincident", 0, 3, -1, 1))
sketch17.addConstraint(Sketcher.Constraint("Diameter", 0, 12.5))
pocket7 = doc.addObject("PartDesign::Pocket", "Pocket006")
body6.addObject(pocket7)
pocket7.Profile = sketch17
pocket7.Length = 12
pocket7.Reversed = True

# Sketch on XZ plane
sketch18 = doc.addObject("Sketcher::SketchObject", "Sketch017")
body6.addObject(sketch18)
sketch18.AttachmentSupport = (doc.getObject("XZ_Plane005"), [""])
sketch18.MapMode = "FlatFace"
sketch18.AttachmentOffset = App.Placement(App.Vector(0, 0, -39.5), App.Rotation())
sketch18.addGeometry(Part.Circle(App.Vector(11, 0, 0), App.Vector(0, 0, 1), 2.65), False)
sketch18.addConstraint(Sketcher.Constraint("PointOnObject", 0, 3, -1))
sketch18.addConstraint(Sketcher.Constraint("Diameter", 0, 5.3))
sketch18.addConstraint(Sketcher.Constraint("DistanceX", -1, 1, 0, 3, 11.0))
pocket8 = doc.addObject("PartDesign::Pocket", "Pocket007")
body6.addObject(pocket8)
pocket8.Profile = sketch18
pocket8.Length = 5
pocket8.Midplane = True

# Sketch on XZ plane
sketch19 = doc.addObject("Sketcher::SketchObject", "Sketch018")
body6.addObject(sketch19)
sketch19.AttachmentSupport = (doc.getObject("XZ_Plane005"), [""])
sketch19.MapMode = "FlatFace"
sketch19.AttachmentOffset = App.Placement(App.Vector(0, 0, -39.5), App.Rotation())
sketch19.addGeometry(Part.Circle(App.Vector(0, 0, 0), App.Vector(0, 0, 1), 2), False)
sketch19.addConstraint(Sketcher.Constraint("Coincident", 0, 3, -1, 1))
sketch19.addConstraint(Sketcher.Constraint("Diameter", 0, 4.0))
pocket9 = doc.addObject("PartDesign::Pocket", "Pocket008")
body6.addObject(pocket9)
pocket9.Profile = sketch19
pocket9.Length = 5

# Sketch on XY plane
sketch20 = doc.addObject("Sketcher::SketchObject", "Sketch019")
body6.addObject(sketch20)
sketch20.AttachmentSupport = (doc.getObject("XY_Plane005"), [""])
sketch20.MapMode = "FlatFace"
sketch20.addGeometry(Part.LineSegment(App.Vector(-3.25, 27, 0), App.Vector(-6.75, 27, 0)), False)
sketch20.addGeometry(Part.LineSegment(App.Vector(-6.75, 27, 0), App.Vector(-6.75, 11, 0)), False)
sketch20.addGeometry(Part.LineSegment(App.Vector(-6.75, 11, 0), App.Vector(38.25, 11, 0)), False)
sketch20.addGeometry(Part.LineSegment(App.Vector(38.25, 11, 0), App.Vector(38.25, 14.3, 0)), False)
sketch20.addGeometry(Part.LineSegment(App.Vector(38.25, 14.3, 0), App.Vector(-3.25, 14.3, 0)), False)
sketch20.addGeometry(Part.LineSegment(App.Vector(-3.25, 14.3, 0), App.Vector(-3.25, 27, 0)), False)
sketch20.addConstraint(Sketcher.Constraint("Coincident", 0, 2, 1, 1))
sketch20.addConstraint(Sketcher.Constraint("Coincident", 1, 2, 2, 1))
sketch20.addConstraint(Sketcher.Constraint("Coincident", 2, 2, 3, 1))
sketch20.addConstraint(Sketcher.Constraint("Coincident", 3, 2, 4, 1))
sketch20.addConstraint(Sketcher.Constraint("Coincident", 4, 2, 5, 1))
sketch20.addConstraint(Sketcher.Constraint("Coincident", 5, 2, 0, 1))
sketch20.addConstraint(Sketcher.Constraint("Horizontal", 0))
sketch20.addConstraint(Sketcher.Constraint("Vertical", 1))
sketch20.addConstraint(Sketcher.Constraint("Horizontal", 2))
sketch20.addConstraint(Sketcher.Constraint("Vertical", 3))
sketch20.addConstraint(Sketcher.Constraint("Horizontal", 4))
sketch20.addConstraint(Sketcher.Constraint("Vertical", 5))
sketch20.addConstraint(Sketcher.Constraint("DistanceX", 2, 1, 2, 2, 45.0))
sketch20.addConstraint(Sketcher.Constraint("DistanceY", 1, 2, 1, 1, 16.0))
sketch20.addConstraint(Sketcher.Constraint("DistanceX", 0, 2, 0, 1, 3.5))
sketch20.addConstraint(Sketcher.Constraint("DistanceY", 3, 1, 3, 2, 3.3))
sketch20.addConstraint(Sketcher.Constraint("DistanceY", -1, 1, 0, 2, 27.0))
sketch20.addConstraint(Sketcher.Constraint("DistanceX", 0, 2, -1, 1, 6.75))
pocket10 = doc.addObject("PartDesign::Pocket", "Pocket009")
body6.addObject(pocket10)
pocket10.Profile = sketch20
pocket10.Length = 6.75

# Sketch on XY plane
sketch21 = doc.addObject("Sketcher::SketchObject", "Sketch020")
body6.addObject(sketch21)
sketch21.AttachmentSupport = (doc.getObject("XY_Plane005"), [""])
sketch21.MapMode = "FlatFace"
sketch21.addGeometry(Part.Circle(App.Vector(0.75, 22, 0), App.Vector(0, 0, 1), 1.75), False)
sketch21.addGeometry(Part.Circle(App.Vector(39.25, 22, 0), App.Vector(0, 0, 1), 1.75), False)
sketch21.addConstraint(Sketcher.Constraint("Equal", 0, 1))
sketch21.addConstraint(Sketcher.Constraint("Horizontal", 0, 3, 1, 3))
sketch21.addConstraint(Sketcher.Constraint("Diameter", 0, 3.5))
sketch21.addConstraint(Sketcher.Constraint("DistanceY", -1, 1, 0, 3, 22.0))
sketch21.addConstraint(Sketcher.Constraint("DistanceX", 0, 3, 1, 3, 38.5))
sketch21.addConstraint(Sketcher.Constraint("DistanceX", -1, 1, 0, 3, 0.75))
pocket11 = doc.addObject("PartDesign::Pocket", "Pocket010")
body6.addObject(pocket11)
pocket11.Profile = sketch21
pocket11.Type = "ThroughAll"

# Sketch on XY plane
sketch22 = doc.addObject("Sketcher::SketchObject", "Sketch021")
body6.addObject(sketch22)
sketch22.AttachmentSupport = (doc.getObject("XY_Plane005"), [""])
sketch22.MapMode = "FlatFace"
sketch22.AttachmentOffset = App.Placement(App.Vector(0, 0, -8.25), App.Rotation())
sketch22.addGeometry(Part.LineSegment(App.Vector(3.5, 20.412287, 0), App.Vector(3.5, 23.587713, 0)), False)
sketch22.addGeometry(Part.LineSegment(App.Vector(3.5, 23.587713, 0), App.Vector(0.75, 25.175426, 0)), False)
sketch22.addGeometry(Part.LineSegment(App.Vector(0.75, 25.175426, 0), App.Vector(-2, 23.587713, 0)), False)
sketch22.addGeometry(Part.LineSegment(App.Vector(-2, 23.587713, 0), App.Vector(-2, 20.412287, 0)), False)
sketch22.addGeometry(Part.LineSegment(App.Vector(-2, 20.412287, 0), App.Vector(0.75, 18.824574, 0)), False)
sketch22.addGeometry(Part.LineSegment(App.Vector(0.75, 18.824574, 0), App.Vector(3.5, 20.412287, 0)), False)
sketch22.addGeometry(Part.LineSegment(App.Vector(42, 20.412287, 0), App.Vector(42, 23.587713, 0)), False)
sketch22.addGeometry(Part.LineSegment(App.Vector(42, 23.587713, 0), App.Vector(39.25, 25.175426, 0)), False)
sketch22.addGeometry(Part.LineSegment(App.Vector(39.25, 25.175426, 0), App.Vector(36.5, 23.587713, 0)), False)
sketch22.addGeometry(Part.LineSegment(App.Vector(36.5, 23.587713, 0), App.Vector(36.5, 20.412287, 0)), False)
sketch22.addGeometry(Part.LineSegment(App.Vector(36.5, 20.412287, 0), App.Vector(39.25, 18.824574, 0)), False)
sketch22.addGeometry(Part.LineSegment(App.Vector(39.25, 18.824574, 0), App.Vector(42, 20.412287, 0)), False)
sketch22.addConstraint(Sketcher.Constraint("Coincident", 0, 2, 1, 1))
sketch22.addConstraint(Sketcher.Constraint("Coincident", 1, 2, 2, 1))
sketch22.addConstraint(Sketcher.Constraint("Coincident", 2, 2, 3, 1))
sketch22.addConstraint(Sketcher.Constraint("Coincident", 3, 2, 4, 1))
sketch22.addConstraint(Sketcher.Constraint("Coincident", 4, 2, 5, 1))
sketch22.addConstraint(Sketcher.Constraint("Coincident", 5, 2, 0, 1))
sketch22.addConstraint(Sketcher.Constraint("Coincident", 6, 2, 7, 1))
sketch22.addConstraint(Sketcher.Constraint("Coincident", 7, 2, 8, 1))
sketch22.addConstraint(Sketcher.Constraint("Coincident", 8, 2, 9, 1))
sketch22.addConstraint(Sketcher.Constraint("Coincident", 9, 2, 10, 1))
sketch22.addConstraint(Sketcher.Constraint("Coincident", 10, 2, 11, 1))
sketch22.addConstraint(Sketcher.Constraint("Coincident", 11, 2, 6, 1))
sketch22.addConstraint(Sketcher.Constraint("Vertical", 0))
sketch22.addConstraint(Sketcher.Constraint("Vertical", 3))
sketch22.addConstraint(Sketcher.Constraint("Vertical", 6))
sketch22.addConstraint(Sketcher.Constraint("Vertical", 9))
sketch22.addConstraint(Sketcher.Constraint("Parallel", 1, 4))
sketch22.addConstraint(Sketcher.Constraint("Parallel", 2, 5))
sketch22.addConstraint(Sketcher.Constraint("Parallel", 4, 7))
sketch22.addConstraint(Sketcher.Constraint("Parallel", 5, 8))
sketch22.addConstraint(Sketcher.Constraint("Parallel", 7, 10))
sketch22.addConstraint(Sketcher.Constraint("Parallel", 8, 11))
sketch22.addConstraint(Sketcher.Constraint("Horizontal", 0, 2, 2, 2))
sketch22.addConstraint(Sketcher.Constraint("Horizontal", 3, 2, 5, 2))
sketch22.addConstraint(Sketcher.Constraint("Horizontal", 2, 2, 6, 2))
sketch22.addConstraint(Sketcher.Constraint("Horizontal", 1, 2, 7, 2))
sketch22.addConstraint(Sketcher.Constraint("Horizontal", 6, 2, 8, 2))
sketch22.addConstraint(Sketcher.Constraint("Horizontal", 5, 2, 9, 2))
sketch22.addConstraint(Sketcher.Constraint("Horizontal", 4, 2, 10, 2))
sketch22.addConstraint(Sketcher.Constraint("Vertical", 1, 2, 4, 2))
sketch22.addConstraint(Sketcher.Constraint("Angle", 1, Q("150.000004 deg")))
sketch22.addConstraint(Sketcher.Constraint("DistanceX", 2, 2, -1, 1, 2.0))
sketch22.addConstraint(Sketcher.Constraint("DistanceX", -1, 1, 6, 2, 42.0))
sketch22.addConstraint(Sketcher.Constraint("DistanceX", 0, 2, 8, 2, 33.0))
sketch22.addConstraint(Sketcher.Constraint("DistanceY", 0, 1, 0, 2, 3.175426))
sketch22.addConstraint(Sketcher.Constraint("DistanceY", -1, 1, 0, 2, 23.587713))
pocket12 = doc.addObject("PartDesign::Pocket", "Pocket011")
body6.addObject(pocket12)
pocket12.Profile = sketch22
pocket12.Length = 4
pocket12.Reversed = True
doc.recompute()

chamfer = doc.addObject("PartDesign::Chamfer", "Chamfer")
body6.addObject(chamfer)
chamfer.Base = (pocket12, edges_at(pocket12, [
    (-8.75, 40.5, -4.125),
    (-8.75, -8.5, -4.125),
    (43.75, -8.5, -4.125),
    (43.75, 40.5, -4.125),
]))
chamfer.Size = 3
doc.recompute()

chamfer2 = doc.addObject("PartDesign::Chamfer", "Chamfer001")
body6.addObject(chamfer2)
chamfer2.Base = (chamfer, edges_at(chamfer, [
    (17.5, -8.5, -8.25),
    (42.25, -7, -8.25),
    (43.75, 16, -8.25),
    (42.25, 39, -8.25),
    (17.5, 40.5, -8.25),
    (-7.25, 39, -8.25),
    (-8.75, 16, -8.25),
    (-7.25, -7, -8.25),
]))
chamfer2.Size = 1.5

# Sketch on XY plane
sketch23 = doc.addObject("Sketcher::SketchObject", "Sketch022")
body6.addObject(sketch23)
sketch23.AttachmentSupport = (doc.getObject("XY_Plane005"), [""])
sketch23.MapMode = "FlatFace"
sketch23.addGeometry(Part.LineSegment(App.Vector(4.2, 25, 0), App.Vector(4.2, 13, 0)), False)
sketch23.addGeometry(Part.LineSegment(App.Vector(4.2, 13, 0), App.Vector(4.8, 13, 0)), False)
sketch23.addGeometry(Part.LineSegment(App.Vector(4.8, 13, 0), App.Vector(4.8, 25, 0)), False)
sketch23.addGeometry(Part.LineSegment(App.Vector(4.8, 25, 0), App.Vector(4.2, 25, 0)), False)
sketch23.addGeometry(Part.LineSegment(App.Vector(35.2, 25, 0), App.Vector(35.2, 13, 0)), False)
sketch23.addGeometry(Part.LineSegment(App.Vector(35.2, 13, 0), App.Vector(35.8, 13, 0)), False)
sketch23.addGeometry(Part.LineSegment(App.Vector(35.8, 13, 0), App.Vector(35.8, 25, 0)), False)
sketch23.addGeometry(Part.LineSegment(App.Vector(35.8, 25, 0), App.Vector(35.2, 25, 0)), False)
sketch23.addConstraint(Sketcher.Constraint("Coincident", 0, 2, 1, 1))
sketch23.addConstraint(Sketcher.Constraint("Coincident", 1, 2, 2, 1))
sketch23.addConstraint(Sketcher.Constraint("Coincident", 2, 2, 3, 1))
sketch23.addConstraint(Sketcher.Constraint("Coincident", 3, 2, 0, 1))
sketch23.addConstraint(Sketcher.Constraint("Coincident", 4, 2, 5, 1))
sketch23.addConstraint(Sketcher.Constraint("Coincident", 5, 2, 6, 1))
sketch23.addConstraint(Sketcher.Constraint("Coincident", 6, 2, 7, 1))
sketch23.addConstraint(Sketcher.Constraint("Coincident", 7, 2, 4, 1))
sketch23.addConstraint(Sketcher.Constraint("Vertical", 0))
sketch23.addConstraint(Sketcher.Constraint("Horizontal", 1))
sketch23.addConstraint(Sketcher.Constraint("Vertical", 2))
sketch23.addConstraint(Sketcher.Constraint("Horizontal", 3))
sketch23.addConstraint(Sketcher.Constraint("Vertical", 4))
sketch23.addConstraint(Sketcher.Constraint("Horizontal", 5))
sketch23.addConstraint(Sketcher.Constraint("Vertical", 6))
sketch23.addConstraint(Sketcher.Constraint("Horizontal", 7))
sketch23.addConstraint(Sketcher.Constraint("Horizontal", 1, 2, 4, 2))
sketch23.addConstraint(Sketcher.Constraint("Horizontal", 3, 2, 6, 2))
sketch23.addConstraint(Sketcher.Constraint("Equal", 3, 5))
sketch23.addConstraint(Sketcher.Constraint("DistanceY", 0, 2, 0, 1, 12.0))
sketch23.addConstraint(Sketcher.Constraint("DistanceX", 1, 1, 1, 2, 0.6))
sketch23.addConstraint(Sketcher.Constraint("DistanceY", -1, 1, 0, 2, 13.0))
sketch23.addConstraint(Sketcher.Constraint("DistanceX", 0, 2, 4, 2, 31.0))
sketch23.addConstraint(Sketcher.Constraint("DistanceX", -1, 1, 0, 2, 4.2))
pocket13 = doc.addObject("PartDesign::Pocket", "Pocket012")
body6.addObject(pocket13)
pocket13.Profile = sketch23
pocket13.Length = 6.75

doc.recompute()
